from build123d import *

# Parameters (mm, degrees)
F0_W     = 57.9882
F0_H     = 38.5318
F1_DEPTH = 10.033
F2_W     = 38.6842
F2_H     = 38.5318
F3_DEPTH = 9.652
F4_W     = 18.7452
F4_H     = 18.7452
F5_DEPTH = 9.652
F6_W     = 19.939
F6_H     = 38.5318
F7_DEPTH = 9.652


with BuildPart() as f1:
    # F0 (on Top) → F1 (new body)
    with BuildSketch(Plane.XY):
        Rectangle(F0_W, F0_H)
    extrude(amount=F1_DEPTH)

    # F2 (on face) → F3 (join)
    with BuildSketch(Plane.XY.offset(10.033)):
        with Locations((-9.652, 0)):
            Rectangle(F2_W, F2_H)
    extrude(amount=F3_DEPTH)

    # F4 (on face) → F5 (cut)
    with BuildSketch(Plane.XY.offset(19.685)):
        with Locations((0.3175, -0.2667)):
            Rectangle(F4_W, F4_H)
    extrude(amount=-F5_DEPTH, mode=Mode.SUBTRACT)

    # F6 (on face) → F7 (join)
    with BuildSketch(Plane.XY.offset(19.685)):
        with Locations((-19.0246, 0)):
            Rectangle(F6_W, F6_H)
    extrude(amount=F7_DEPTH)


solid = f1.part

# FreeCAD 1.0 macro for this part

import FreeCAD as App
import Part
import Sketcher

V = App.Vector
Q = App.Units.Quantity

doc = App.newDocument("Part")
params = doc.addObject("Spreadsheet::Sheet", "Params")
for row, (alias, value) in enumerate([
    ("sketch1_width", "2.283 in"),
    ("sketch1_height", "1.517 in"),
    ("pad1_length", "0.395 in"),
    ("sketch2_width", "1.523 in"),
    ("sketch2_height", "1.517 in"),
    ("pad2_length", "0.38 in"),
    ("sketch3_width", "0.738 in"),
    ("pocket1_length", "0.38 in"),
    ("sketch4_width", "0.785 in"),
    ("sketch4_height", "1.517 in"),
    ("pad3_length", "0.38 in"),
], start=1):
    params.set(f"A{row}", alias)
    params.set(f"B{row}", "=" + value)
    params.setAlias(f"B{row}", alias)

body = doc.addObject("PartDesign::Body", "Body")

# Sketch on XY plane
sketch1 = body.newObject("Sketcher::SketchObject", "Sketch")
sketch1.AttachmentSupport = (doc.getObject("XY_Plane"), [""])
sketch1.MapMode = "FlatFace"
sketch1.addGeometry(Part.LineSegment(V(-28.9941, 19.2659, 0), V(-28.9941, -19.2659, 0)), False)
sketch1.addGeometry(Part.LineSegment(V(-28.9941, -19.2659, 0), V(28.9941, -19.2659, 0)), False)
sketch1.addGeometry(Part.LineSegment(V(28.9941, -19.2659, 0), V(28.9941, 19.2659, 0)), False)
sketch1.addGeometry(Part.LineSegment(V(28.9941, 19.2659, 0), V(-28.9941, 19.2659, 0)), False)
sketch1.addConstraint(Sketcher.Constraint("Coincident", 0, 2, 1, 1))
sketch1.addConstraint(Sketcher.Constraint("Coincident", 1, 2, 2, 1))
sketch1.addConstraint(Sketcher.Constraint("Coincident", 2, 2, 3, 1))
sketch1.addConstraint(Sketcher.Constraint("Coincident", 3, 2, 0, 1))
sketch1.addConstraint(Sketcher.Constraint("Vertical", 0))
sketch1.addConstraint(Sketcher.Constraint("Horizontal", 1))
sketch1.addConstraint(Sketcher.Constraint("Vertical", 2))
sketch1.addConstraint(Sketcher.Constraint("Horizontal", 3))
sketch1.addConstraint(Sketcher.Constraint("Symmetric", 0, 2, 2, 2, -1, 1))
sketch1.addConstraint(Sketcher.Constraint("DistanceX", 1, 1, 1, 2, Q("2.283 in")))
sketch1.addConstraint(Sketcher.Constraint("DistanceY", 0, 2, 0, 1, Q("1.517 in")))
sketch1.setExpression("Constraints[9]", "Params.sketch1_width")
sketch1.setExpression("Constraints[10]", "Params.sketch1_height")
pad1 = body.newObject("PartDesign::Pad", "Pad")
pad1.Profile = sketch1
pad1.setExpression("Length", "Params.pad1_length")

# Sketch on XY plane
sketch2 = body.newObject("Sketcher::SketchObject", "Sketch001")
sketch2.AttachmentSupport = (doc.getObject("XY_Plane"), [""])
sketch2.MapMode = "FlatFace"
sketch2.AttachmentOffset = App.Placement(V(0, 0, 0.395 * 25.4), App.Rotation())
sketch2.addGeometry(Part.LineSegment(V(-28.9941, 19.2659, 0), V(-28.9941, -19.2659, 0)), False)
sketch2.addGeometry(Part.LineSegment(V(-28.9941, -19.2659, 0), V(9.6901, -19.2659, 0)), False)
sketch2.addGeometry(Part.LineSegment(V(9.6901, -19.2659, 0), V(9.6901, 19.2659, 0)), False)
sketch2.addGeometry(Part.LineSegment(V(9.6901, 19.2659, 0), V(-28.9941, 19.2659, 0)), False)
sketch2.addConstraint(Sketcher.Constraint("Coincident", 0, 2, 1, 1))
sketch2.addConstraint(Sketcher.Constraint("Coincident", 1, 2, 2, 1))
sketch2.addConstraint(Sketcher.Constraint("Coincident", 2, 2, 3, 1))
sketch2.addConstraint(Sketcher.Constraint("Coincident", 3, 2, 0, 1))
sketch2.addConstraint(Sketcher.Constraint("Vertical", 0))
sketch2.addConstraint(Sketcher.Constraint("Horizontal", 1))
sketch2.addConstraint(Sketcher.Constraint("Vertical", 2))
sketch2.addConstraint(Sketcher.Constraint("Horizontal", 3))
sketch2.addConstraint(Sketcher.Constraint("DistanceX", 1, 1, 1, 2, Q("1.523 in")))
sketch2.addConstraint(Sketcher.Constraint("DistanceY", 0, 2, 0, 1, Q("1.517 in")))
sketch2.addConstraint(Sketcher.Constraint("DistanceX", 0, 2, -1, 1, Q("1.1415 in")))
sketch2.addConstraint(Sketcher.Constraint("DistanceY", 0, 2, -1, 1, Q("0.7585 in")))
sketch2.setExpression("Constraints[8]", "Params.sketch2_width")
sketch2.setExpression("Constraints[9]", "Params.sketch2_height")
pad2 = body.newObject("PartDesign::Pad", "Pad001")
pad2.Profile = sketch2
pad2.setExpression("Length", "Params.pad2_length")

# Sketch on XY plane
sketch3 = body.newObject("Sketcher::SketchObject", "Sketch002")
sketch3.AttachmentSupport = (doc.getObject("XY_Plane"), [""])
sketch3.MapMode = "FlatFace"
sketch3.AttachmentOffset = App.Placement(V(0, 0, 0.775 * 25.4), App.Rotation())
sketch3.addGeometry(Part.LineSegment(V(-9.0551, 9.1059, 0), V(-9.0551, -9.6393, 0)), False)
sketch3.addGeometry(Part.LineSegment(V(-9.0551, -9.6393, 0), V(9.6901, -9.6393, 0)), False)
sketch3.addGeometry(Part.LineSegment(V(9.6901, -9.6393, 0), V(9.6901, 9.1059, 0)), False)
sketch3.addGeometry(Part.LineSegment(V(9.6901, 9.1059, 0), V(-9.0551, 9.1059, 0)), False)
sketch3.addConstraint(Sketcher.Constraint("Coincident", 0, 2, 1, 1))
sketch3.addConstraint(Sketcher.Constraint("Coincident", 1, 2, 2, 1))
sketch3.addConstraint(Sketcher.Constraint("Coincident", 2, 2, 3, 1))
sketch3.addConstraint(Sketcher.Constraint("Coincident", 3, 2, 0, 1))
sketch3.addConstraint(Sketcher.Constraint("Vertical", 0))
sketch3.addConstraint(Sketcher.Constraint("Horizontal", 1))
sketch3.addConstraint(Sketcher.Constraint("Vertical", 2))
sketch3.addConstraint(Sketcher.Constraint("Horizontal", 3))
sketch3.addConstraint(Sketcher.Constraint("Equal", 3, 0))
sketch3.addConstraint(Sketcher.Constraint("DistanceX", 1, 1, 1, 2, Q("0.738 in")))
sketch3.addConstraint(Sketcher.Constraint("DistanceX", 0, 2, -1, 1, Q("0.3565 in")))
sketch3.addConstraint(Sketcher.Constraint("DistanceY", 0, 2, -1, 1, Q("0.3795 in")))
sketch3.setExpression("Constraints[9]", "Params.sketch3_width")
pocket1 = body.newObject("PartDesign::Pocket", "Pocket")
pocket1.Profile = sketch3
pocket1.setExpression("Length", "Params.pocket1_length")

# Sketch on XY plane
sketch4 = body.newObject("Sketcher::SketchObject", "Sketch003")
sketch4.AttachmentSupport = (doc.getObject("XY_Plane"), [""])
sketch4.MapMode = "FlatFace"
sketch4.AttachmentOffset = App.Placement(V(0, 0, 0.775 * 25.4), App.Rotation())
sketch4.addGeometry(Part.LineSegment(V(-28.9941, 19.2659, 0), V(-28.9941, -19.2659, 0)), False)
sketch4.addGeometry(Part.LineSegment(V(-28.9941, -19.2659, 0), V(-9.0551, -19.2659, 0)), False)
sketch4.addGeometry(Part.LineSegment(V(-9.0551, -19.2659, 0), V(-9.0551, 19.2659, 0)), False)
sketch4.addGeometry(Part.LineSegment(V(-9.0551, 19.2659, 0), V(-28.9941, 19.2659, 0)), False)
sketch4.addConstraint(Sketcher.Constraint("Coincident", 0, 2, 1, 1))
sketch4.addConstraint(Sketcher.Constraint("Coincident", 1, 2, 2, 1))
sketch4.addConstraint(Sketcher.Constraint("Coincident", 2, 2, 3, 1))
sketch4.addConstraint(Sketcher.Constraint("Coincident", 3, 2, 0, 1))
sketch4.addConstraint(Sketcher.Constraint("Vertical", 0))
sketch4.addConstraint(Sketcher.Constraint("Horizontal", 1))
sketch4.addConstraint(Sketcher.Constraint("Vertical", 2))
sketch4.addConstraint(Sketcher.Constraint("Horizontal", 3))
sketch4.addConstraint(Sketcher.Constraint("DistanceX", 1, 1, 1, 2, Q("0.785 in")))
sketch4.addConstraint(Sketcher.Constraint("DistanceY", 0, 2, 0, 1, Q("1.517 in")))
sketch4.addConstraint(Sketcher.Constraint("DistanceX", 0, 2, -1, 1, Q("1.1415 in")))
sketch4.addConstraint(Sketcher.Constraint("DistanceY", 0, 2, -1, 1, Q("0.7585 in")))
sketch4.setExpression("Constraints[8]", "Params.sketch4_width")
sketch4.setExpression("Constraints[9]", "Params.sketch4_height")
pad3 = body.newObject("PartDesign::Pad", "Pad002")
pad3.Profile = sketch4
pad3.setExpression("Length", "Params.pad3_length")

doc.recompute()
